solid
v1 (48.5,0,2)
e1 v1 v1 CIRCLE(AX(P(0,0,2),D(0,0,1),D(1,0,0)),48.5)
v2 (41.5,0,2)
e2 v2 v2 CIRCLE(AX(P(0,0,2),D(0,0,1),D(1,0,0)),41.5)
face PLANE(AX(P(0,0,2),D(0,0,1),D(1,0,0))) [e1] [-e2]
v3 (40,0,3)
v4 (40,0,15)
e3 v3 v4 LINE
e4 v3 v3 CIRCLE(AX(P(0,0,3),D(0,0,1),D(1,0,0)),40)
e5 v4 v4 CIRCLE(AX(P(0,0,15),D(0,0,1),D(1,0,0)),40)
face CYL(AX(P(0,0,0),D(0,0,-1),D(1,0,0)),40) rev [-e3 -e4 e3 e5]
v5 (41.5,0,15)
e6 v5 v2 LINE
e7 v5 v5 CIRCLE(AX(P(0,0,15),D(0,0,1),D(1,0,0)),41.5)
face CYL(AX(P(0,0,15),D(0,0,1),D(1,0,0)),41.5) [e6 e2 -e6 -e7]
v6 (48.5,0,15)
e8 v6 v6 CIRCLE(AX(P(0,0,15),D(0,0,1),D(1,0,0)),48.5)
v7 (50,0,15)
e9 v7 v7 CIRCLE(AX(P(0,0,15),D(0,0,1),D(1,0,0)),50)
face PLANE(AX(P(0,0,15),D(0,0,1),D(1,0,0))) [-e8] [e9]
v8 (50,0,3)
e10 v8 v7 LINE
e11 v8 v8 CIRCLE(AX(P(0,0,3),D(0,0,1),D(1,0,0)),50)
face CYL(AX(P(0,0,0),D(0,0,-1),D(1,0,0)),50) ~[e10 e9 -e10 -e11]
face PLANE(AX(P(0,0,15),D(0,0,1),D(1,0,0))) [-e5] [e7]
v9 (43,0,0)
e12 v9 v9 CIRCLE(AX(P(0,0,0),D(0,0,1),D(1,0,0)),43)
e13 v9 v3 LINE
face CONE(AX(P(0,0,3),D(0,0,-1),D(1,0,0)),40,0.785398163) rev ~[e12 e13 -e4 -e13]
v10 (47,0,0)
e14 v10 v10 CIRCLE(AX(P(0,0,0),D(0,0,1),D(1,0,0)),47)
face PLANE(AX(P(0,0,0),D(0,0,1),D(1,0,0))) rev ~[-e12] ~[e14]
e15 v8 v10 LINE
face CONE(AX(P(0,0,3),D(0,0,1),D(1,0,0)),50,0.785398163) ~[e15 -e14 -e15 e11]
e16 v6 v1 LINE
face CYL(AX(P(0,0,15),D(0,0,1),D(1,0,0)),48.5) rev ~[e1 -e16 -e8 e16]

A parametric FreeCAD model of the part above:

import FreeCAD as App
import Part
import Sketcher
Q = App.Units.Quantity


def edges_at(feature, points):
    """Names of the edges that pass closest to the given points."""
    edges = feature.Shape.Edges
    near = lambda p: min(range(len(edges)), key=lambda i: edges[i].distToShape(Part.Vertex(*p))[0])
    return sorted({f"Edge{near(p) + 1}" for p in points})

doc = App.newDocument("Part")
params = doc.addObject("Spreadsheet::Sheet", "Params")
for row, (alias, value) in enumerate([
    ("sketch1_diameter", "100 mm"),
    ("sketch1_diameter2", "80 mm"),
    ("pad1_length", "15 mm"),
    ("sketch2_diameter", "97 mm"),
    ("sketch2_diameter2", "83 mm"),
    ("pocket1_length", "13 mm"),
    ("chamfer_size", "3 mm"),
    ("chamfer2_size", "3 mm"),
], start=1):
    params.set(f"A{row}", alias)
    params.set(f"B{row}", "=" + value)
    params.setAlias(f"B{row}", alias)

body = doc.addObject("PartDesign::Body", "Body")

# Sketch on XY plane
sketch1 = doc.addObject("Sketcher::SketchObject", "Sketch")
body.addObject(sketch1)
sketch1.AttachmentSupport = (doc.XY_Plane, [""])
sketch1.MapMode = "FlatFace"
sketch1.addGeometry(Part.Circle(App.Vector(0, 0, 0), App.Vector(0, 0, 1), 50), False)
sketch1.addGeometry(Part.Circle(App.Vector(0, 0, 0), App.Vector(0, 0, 1), 40), False)
sketch1.addConstraint(Sketcher.Constraint("Coincident", 0, 3, -1, 1))
sketch1.addConstraint(Sketcher.Constraint("Coincident", 1, 3, -1, 1))
sketch1.addConstraint(Sketcher.Constraint("Diameter", 0, Q("100 mm")))
sketch1.addConstraint(Sketcher.Constraint("Diameter", 1, Q("80 mm")))
sketch1.setExpression("Constraints[2]", "Params.sketch1_diameter")
sketch1.setExpression("Constraints[3]", "Params.sketch1_diameter2")
pad1 = doc.addObject("PartDesign::Pad", "Pad")
body.addObject(pad1)
pad1.Profile = sketch1
pad1.setExpression("Length", "Params.pad1_length")

# Sketch on XY plane
sketch2 = doc.addObject("Sketcher::SketchObject", "Sketch001")
body.addObject(sketch2)
sketch2.AttachmentSupport = (doc.XY_Plane, [""])
sketch2.MapMode = "FlatFace"
sketch2.AttachmentOffset = App.Placement(App.Vector(0, 0, 15), App.Rotation())
sketch2.addGeometry(Part.Circle(App.Vector(0, 0, 0), App.Vector(0, 0, 1), 48.5), False)
sketch2.addGeometry(Part.Circle(App.Vector(0, 0, 0), App.Vector(0, 0, 1), 41.5), False)
sketch2.addConstraint(Sketcher.Constraint("Coincident", 0, 3, -1, 1))
sketch2.addConstraint(Sketcher.Constraint("Coincident", 1, 3, -1, 1))
sketch2.addConstraint(Sketcher.Constraint("Diameter", 0, Q("97 mm")))
sketch2.addConstraint(Sketcher.Constraint("Diameter", 1, Q("83 mm")))
sketch2.setExpression("Constraints[2]", "Params.sketch2_diameter")
sketch2.setExpression("Constraints[3]", "Params.sketch2_diameter2")
pocket1 = doc.addObject("PartDesign::Pocket", "Pocket")
body.addObject(pocket1)
pocket1.Profile = sketch2
pocket1.setExpression("Length", "Params.pocket1_length")
doc.recompute()

chamfer = doc.addObject("PartDesign::Chamfer", "Chamfer")
body.addObject(chamfer)
chamfer.Base = (pocket1, edges_at(pocket1, [(-50, 0, 0)]))
chamfer.setExpression("Size", "Params.chamfer_size")
doc.recompute()

chamfer2 = doc.addObject("PartDesign::Chamfer", "Chamfer001")
body.addObject(chamfer2)
chamfer2.Base = (chamfer, edges_at(chamfer, [(-40, 0, 0)]))
chamfer2.setExpression("Size", "Params.chamfer2_size")

doc.recompute()
